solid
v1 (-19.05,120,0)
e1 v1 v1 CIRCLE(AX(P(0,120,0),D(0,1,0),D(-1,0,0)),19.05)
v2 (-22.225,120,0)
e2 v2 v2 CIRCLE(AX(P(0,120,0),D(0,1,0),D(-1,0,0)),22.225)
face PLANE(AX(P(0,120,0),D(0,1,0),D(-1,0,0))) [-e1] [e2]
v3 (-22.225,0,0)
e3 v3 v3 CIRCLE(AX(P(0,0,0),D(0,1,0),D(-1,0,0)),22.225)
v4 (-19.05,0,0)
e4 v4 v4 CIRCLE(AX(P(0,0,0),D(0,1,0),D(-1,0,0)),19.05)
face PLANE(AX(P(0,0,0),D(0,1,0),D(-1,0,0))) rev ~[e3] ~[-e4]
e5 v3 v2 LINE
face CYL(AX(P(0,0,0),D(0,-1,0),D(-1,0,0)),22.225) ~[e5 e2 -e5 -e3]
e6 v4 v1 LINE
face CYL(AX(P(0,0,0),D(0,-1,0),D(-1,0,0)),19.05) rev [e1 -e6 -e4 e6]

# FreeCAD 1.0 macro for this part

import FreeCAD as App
import Part
import Sketcher
from FreeCAD import Vector
Q = App.Units.Quantity

doc = App.newDocument("Part")
params = doc.addObject("Spreadsheet::Sheet", "Params")
for row, (alias, value) in enumerate([
    ("sketch1_diameter", "1.75 in"),
    ("sketch1_diameter2", "1.5 in"),
    ("pad1_length", "4.7244094 in"),
], start=1):
    params.set(f"A{row}", alias)
    params.set(f"B{row}", "=" + value)
    params.setAlias(f"B{row}", alias)

body = doc.addObject("PartDesign::Body", "Body")

# Sketch on XZ plane
sketch1 = body.newObject("Sketcher::SketchObject", "Sketch")
sketch1.AttachmentSupport = (doc.getObject("XZ_Plane"), [""])
sketch1.MapMode = "FlatFace"
sketch1.addGeometry([
    Part.Circle(Vector(0, 0, 0), Vector(0, 0, 1), 22),
    Part.Circle(Vector(0, 0, 0), Vector(0, 0, 1), 19),
], False)
sketch1.addConstraint([
    Sketcher.Constraint("Coincident", 0, 3, -1, 1),
    Sketcher.Constraint("Coincident", 1, 3, -1, 1),
    Sketcher.Constraint("Diameter", 0, Q("1.75 in")),
    Sketcher.Constraint("Diameter", 1, Q("1.5 in")),
])
sketch1.setExpression("Constraints[2]", "Params.sketch1_diameter")
sketch1.setExpression("Constraints[3]", "Params.sketch1_diameter2")
pad1 = body.newObject("PartDesign::Pad", "Pad")
pad1.Profile = sketch1
pad1.setExpression("Length", "Params.pad1_length")
pad1.Reversed = True

doc.recompute()
